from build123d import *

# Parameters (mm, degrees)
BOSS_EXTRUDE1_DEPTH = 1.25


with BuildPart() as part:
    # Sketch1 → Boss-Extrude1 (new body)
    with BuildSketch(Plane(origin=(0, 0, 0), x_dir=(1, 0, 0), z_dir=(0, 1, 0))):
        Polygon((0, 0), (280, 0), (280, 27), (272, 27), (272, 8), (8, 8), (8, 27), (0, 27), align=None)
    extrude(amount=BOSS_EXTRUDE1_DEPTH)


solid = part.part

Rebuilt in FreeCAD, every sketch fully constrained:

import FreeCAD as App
import Part
import Sketcher
from FreeCAD import Vector
Q = App.Units.Quantity


def add_polygon(sketch, points):
    """Adds a closed chain of lines whose ends are joined by coincident constraints."""
    first, n = sketch.GeometryCount, len(points)
    for a, b in zip(points, points[1:] + points[:1]):
        sketch.addGeometry(Part.LineSegment(App.Vector(*a, 0), App.Vector(*b, 0)), False)
    for i in range(n):
        sketch.addConstraint(Sketcher.Constraint("Coincident", first + i, 2, first + (i + 1) % n, 1))

doc = App.newDocument("Part")
body = doc.addObject("PartDesign::Body", "Body")

# Sketch on XZ plane
sketch1 = doc.addObject("Sketcher::SketchObject", "Sketch")
body.addObject(sketch1)
sketch1.AttachmentSupport = (doc.XZ_Plane, [""])
sketch1.MapMode = "FlatFace"
add_polygon(sketch1, [(0, 0), (280, 0), (280, -27), (272, -27), (272, -8), (8, -8), (8, -27), (0, -27)])  # lines 0-7
sketch1.addConstraint(Sketcher.Constraint("Horizontal", 0))
sketch1.addConstraint(Sketcher.Constraint("Vertical", 1))
sketch1.addConstraint(Sketcher.Constraint("Horizontal", 2))
sketch1.addConstraint(Sketcher.Constraint("Vertical", 3))
sketch1.addConstraint(Sketcher.Constraint("Horizontal", 4))
sketch1.addConstraint(Sketcher.Constraint("Vertical", 5))
sketch1.addConstraint(Sketcher.Constraint("Horizontal", 6))
sketch1.addConstraint(Sketcher.Constraint("Vertical", 7))
sketch1.addConstraint(Sketcher.Constraint("Coincident", 7, 2, -1, 1))
sketch1.addConstraint(Sketcher.Constraint("Horizontal", 2, 2, 5, 2))
sketch1.addConstraint(Sketcher.Constraint("Equal", 2, 6))
sketch1.addConstraint(Sketcher.Constraint("DistanceX", 0, 1, 0, 2, Q("280 mm")))
sketch1.addConstraint(Sketcher.Constraint("DistanceX", 2, 2, 2, 1, Q("8 mm")))
sketch1.addConstraint(Sketcher.Constraint("DistanceY", 1, 2, 1, 1, Q("27 mm")))
sketch1.addConstraint(Sketcher.Constraint("DistanceY", 3, 1, 3, 2, Q("19 mm")))
pad1 = doc.addObject("PartDesign::Pad", "Pad")
body.addObject(pad1)
pad1.Profile = sketch1
pad1.Length = 1.25
pad1.Reversed = True

doc.recompute()
